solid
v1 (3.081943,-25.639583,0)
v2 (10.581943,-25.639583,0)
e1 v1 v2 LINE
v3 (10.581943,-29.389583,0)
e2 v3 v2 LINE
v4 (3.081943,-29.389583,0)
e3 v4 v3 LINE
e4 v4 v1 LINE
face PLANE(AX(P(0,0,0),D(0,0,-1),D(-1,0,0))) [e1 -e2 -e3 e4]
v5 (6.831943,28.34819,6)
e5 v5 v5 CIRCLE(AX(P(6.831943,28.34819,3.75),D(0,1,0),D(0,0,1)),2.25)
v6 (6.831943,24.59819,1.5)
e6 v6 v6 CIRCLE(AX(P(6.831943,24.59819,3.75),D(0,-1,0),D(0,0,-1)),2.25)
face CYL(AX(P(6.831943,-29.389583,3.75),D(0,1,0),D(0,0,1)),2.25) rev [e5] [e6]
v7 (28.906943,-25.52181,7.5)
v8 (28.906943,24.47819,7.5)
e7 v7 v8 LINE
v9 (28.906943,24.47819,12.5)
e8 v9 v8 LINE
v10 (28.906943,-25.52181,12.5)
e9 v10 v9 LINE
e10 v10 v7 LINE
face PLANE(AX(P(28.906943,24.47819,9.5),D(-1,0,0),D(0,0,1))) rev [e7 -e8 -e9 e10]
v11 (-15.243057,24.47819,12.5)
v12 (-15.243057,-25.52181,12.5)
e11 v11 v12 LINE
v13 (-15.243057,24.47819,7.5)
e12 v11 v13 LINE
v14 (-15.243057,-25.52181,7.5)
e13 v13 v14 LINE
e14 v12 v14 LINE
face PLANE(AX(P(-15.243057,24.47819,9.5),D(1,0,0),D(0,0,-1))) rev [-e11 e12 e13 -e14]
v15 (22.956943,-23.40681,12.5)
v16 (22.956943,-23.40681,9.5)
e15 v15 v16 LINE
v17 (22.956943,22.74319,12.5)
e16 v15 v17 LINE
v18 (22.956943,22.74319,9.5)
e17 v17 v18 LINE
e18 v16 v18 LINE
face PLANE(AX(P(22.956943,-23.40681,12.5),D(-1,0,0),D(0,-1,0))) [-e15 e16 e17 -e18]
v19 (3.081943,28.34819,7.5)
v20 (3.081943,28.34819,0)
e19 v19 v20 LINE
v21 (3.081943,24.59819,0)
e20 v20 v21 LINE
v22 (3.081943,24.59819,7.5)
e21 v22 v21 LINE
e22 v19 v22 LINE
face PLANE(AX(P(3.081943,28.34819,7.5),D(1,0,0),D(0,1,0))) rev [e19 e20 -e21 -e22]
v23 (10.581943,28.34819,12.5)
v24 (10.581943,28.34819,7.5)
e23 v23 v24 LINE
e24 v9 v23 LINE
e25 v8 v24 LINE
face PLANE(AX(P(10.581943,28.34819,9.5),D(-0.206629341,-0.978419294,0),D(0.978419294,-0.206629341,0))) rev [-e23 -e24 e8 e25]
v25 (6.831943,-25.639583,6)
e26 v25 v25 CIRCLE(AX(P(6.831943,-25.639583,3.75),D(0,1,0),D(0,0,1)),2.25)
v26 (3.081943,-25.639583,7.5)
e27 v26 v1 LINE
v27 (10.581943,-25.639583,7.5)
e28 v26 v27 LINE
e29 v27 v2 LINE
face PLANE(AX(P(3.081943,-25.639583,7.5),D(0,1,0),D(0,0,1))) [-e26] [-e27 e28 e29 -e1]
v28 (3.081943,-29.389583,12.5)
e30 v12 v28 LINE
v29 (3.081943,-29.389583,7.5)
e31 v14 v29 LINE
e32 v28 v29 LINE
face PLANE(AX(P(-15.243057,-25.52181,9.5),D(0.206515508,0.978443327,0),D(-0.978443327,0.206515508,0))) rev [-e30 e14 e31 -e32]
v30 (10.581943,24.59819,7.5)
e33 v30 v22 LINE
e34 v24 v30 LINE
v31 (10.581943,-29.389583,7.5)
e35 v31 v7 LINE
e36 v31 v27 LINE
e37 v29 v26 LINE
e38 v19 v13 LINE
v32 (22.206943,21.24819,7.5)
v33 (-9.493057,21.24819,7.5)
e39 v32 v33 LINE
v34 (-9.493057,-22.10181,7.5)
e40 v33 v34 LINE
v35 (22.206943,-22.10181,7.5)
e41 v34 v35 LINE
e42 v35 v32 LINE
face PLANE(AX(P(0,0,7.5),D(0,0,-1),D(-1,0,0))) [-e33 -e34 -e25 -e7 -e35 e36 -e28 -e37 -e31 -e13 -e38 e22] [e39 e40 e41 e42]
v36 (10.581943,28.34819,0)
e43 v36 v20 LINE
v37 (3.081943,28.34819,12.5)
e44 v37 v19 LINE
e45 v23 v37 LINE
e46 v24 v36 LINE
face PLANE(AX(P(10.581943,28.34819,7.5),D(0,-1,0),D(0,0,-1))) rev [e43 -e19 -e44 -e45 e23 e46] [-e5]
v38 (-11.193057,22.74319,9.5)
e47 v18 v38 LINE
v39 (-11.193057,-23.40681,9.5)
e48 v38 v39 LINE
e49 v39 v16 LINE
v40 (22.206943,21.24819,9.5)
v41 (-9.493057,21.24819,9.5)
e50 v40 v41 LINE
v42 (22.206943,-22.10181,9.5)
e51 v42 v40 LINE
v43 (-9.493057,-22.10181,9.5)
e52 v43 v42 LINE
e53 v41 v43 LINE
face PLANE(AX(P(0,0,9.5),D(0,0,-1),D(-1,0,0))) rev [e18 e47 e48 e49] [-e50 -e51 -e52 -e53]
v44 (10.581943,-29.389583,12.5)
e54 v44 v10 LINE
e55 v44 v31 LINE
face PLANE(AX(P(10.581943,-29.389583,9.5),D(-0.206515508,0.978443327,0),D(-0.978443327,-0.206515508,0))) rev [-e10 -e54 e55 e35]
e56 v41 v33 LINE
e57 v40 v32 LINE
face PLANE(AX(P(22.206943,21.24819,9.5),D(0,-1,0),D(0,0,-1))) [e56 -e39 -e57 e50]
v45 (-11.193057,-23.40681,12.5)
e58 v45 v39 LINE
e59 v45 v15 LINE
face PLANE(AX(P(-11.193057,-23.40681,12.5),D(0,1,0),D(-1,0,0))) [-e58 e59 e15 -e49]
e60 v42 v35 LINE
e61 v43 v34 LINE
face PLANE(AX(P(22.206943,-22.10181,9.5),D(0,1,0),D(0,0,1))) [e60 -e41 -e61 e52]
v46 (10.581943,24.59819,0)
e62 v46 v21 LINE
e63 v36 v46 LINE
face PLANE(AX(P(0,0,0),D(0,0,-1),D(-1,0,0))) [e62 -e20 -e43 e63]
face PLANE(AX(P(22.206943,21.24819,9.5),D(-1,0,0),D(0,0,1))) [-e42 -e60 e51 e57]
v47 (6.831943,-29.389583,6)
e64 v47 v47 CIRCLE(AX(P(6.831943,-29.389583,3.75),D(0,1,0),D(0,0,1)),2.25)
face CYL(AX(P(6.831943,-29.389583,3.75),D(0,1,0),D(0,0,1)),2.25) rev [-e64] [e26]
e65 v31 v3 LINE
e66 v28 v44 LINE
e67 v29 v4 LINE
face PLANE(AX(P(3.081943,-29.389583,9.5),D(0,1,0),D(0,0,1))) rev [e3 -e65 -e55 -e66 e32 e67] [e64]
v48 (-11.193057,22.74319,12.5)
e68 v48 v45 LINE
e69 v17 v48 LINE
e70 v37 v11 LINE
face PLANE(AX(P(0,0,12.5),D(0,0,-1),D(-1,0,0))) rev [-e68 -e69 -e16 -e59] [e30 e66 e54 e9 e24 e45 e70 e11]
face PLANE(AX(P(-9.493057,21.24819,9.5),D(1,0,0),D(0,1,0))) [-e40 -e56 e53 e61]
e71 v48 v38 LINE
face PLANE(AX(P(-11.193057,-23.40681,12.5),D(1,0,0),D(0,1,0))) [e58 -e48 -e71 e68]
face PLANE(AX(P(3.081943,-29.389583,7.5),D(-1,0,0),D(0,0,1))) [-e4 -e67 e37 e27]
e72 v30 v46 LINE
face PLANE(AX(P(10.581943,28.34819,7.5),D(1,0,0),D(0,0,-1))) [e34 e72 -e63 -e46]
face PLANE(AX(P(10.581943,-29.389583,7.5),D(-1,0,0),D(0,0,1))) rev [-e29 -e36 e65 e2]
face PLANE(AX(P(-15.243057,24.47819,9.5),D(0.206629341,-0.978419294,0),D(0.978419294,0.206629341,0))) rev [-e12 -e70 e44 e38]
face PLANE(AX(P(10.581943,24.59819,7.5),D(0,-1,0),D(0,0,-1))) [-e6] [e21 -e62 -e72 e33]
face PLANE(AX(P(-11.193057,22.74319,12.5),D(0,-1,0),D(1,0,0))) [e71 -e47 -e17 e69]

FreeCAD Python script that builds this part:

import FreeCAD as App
import Part
import Sketcher
Q = App.Units.Quantity

doc = App.newDocument("Part")
body = doc.addObject("PartDesign::Body", "Body")

sketch1 = body.newObject("Sketcher::SketchObject", "Sketch")
sketch1.AttachmentSupport = (doc.getObject("XY_Plane"), [""])
sketch1.MapMode = "FlatFace"
sketch1.addGeometry([
    Part.LineSegment(App.Vector(3.1, 28.3, 0), App.Vector(3.1, 24.6, 0)),
    Part.LineSegment(App.Vector(3.1, 24.6, 0), App.Vector(10.6, 24.6, 0)),
    Part.LineSegment(App.Vector(10.6, 24.6, 0), App.Vector(10.6, 28.3, 0)),
    Part.LineSegment(App.Vector(10.6, 28.3, 0), App.Vector(3.1, 28.3, 0)),
], False)
sketch1.addConstraint([
    Sketcher.Constraint("Coincident", 0, 2, 1, 1),
    Sketcher.Constraint("Coincident", 1, 2, 2, 1),
    Sketcher.Constraint("Coincident", 2, 2, 3, 1),
    Sketcher.Constraint("Coincident", 3, 2, 0, 1),
    Sketcher.Constraint("Vertical", 0),
    Sketcher.Constraint("Horizontal", 1),
    Sketcher.Constraint("Vertical", 2),
    Sketcher.Constraint("Horizontal", 3),
    Sketcher.Constraint("DistanceX", 1, 1, 1, 2, Q("7.5 mm")),
    Sketcher.Constraint("DistanceY", 0, 2, 0, 1, Q("3.75 mm")),
    Sketcher.Constraint("DistanceY", -1, 1, 0, 2, Q("24.59819 mm")),
    Sketcher.Constraint("DistanceX", -1, 1, 0, 2, Q("3.081943 mm")),
])
pad1 = body.newObject("PartDesign::Pad", "Pad")
pad1.Profile = sketch1
pad1.Length = 7.5
body2 = doc.addObject("PartDesign::Body", "Body001")

sketch2 = body2.newObject("Sketcher::SketchObject", "Sketch001")
sketch2.AttachmentSupport = (doc.getObject("XY_Plane001"), [""])
sketch2.MapMode = "FlatFace"
sketch2.addGeometry([
    Part.LineSegment(App.Vector(3.1, -25.6, 0), App.Vector(3.1, -29.4, 0)),
    Part.LineSegment(App.Vector(3.1, -29.4, 0), App.Vector(10.6, -29.4, 0)),
    Part.LineSegment(App.Vector(10.6, -29.4, 0), App.Vector(10.6, -25.6, 0)),
    Part.LineSegment(App.Vector(10.6, -25.6, 0), App.Vector(3.1, -25.6, 0)),
], False)
sketch2.addConstraint([
    Sketcher.Constraint("Coincident", 0, 2, 1, 1),
    Sketcher.Constraint("Coincident", 1, 2, 2, 1),
    Sketcher.Constraint("Coincident", 2, 2, 3, 1),
    Sketcher.Constraint("Coincident", 3, 2, 0, 1),
    Sketcher.Constraint("Vertical", 0),
    Sketcher.Constraint("Horizontal", 1),
    Sketcher.Constraint("Vertical", 2),
    Sketcher.Constraint("Horizontal", 3),
    Sketcher.Constraint("DistanceX", 1, 1, 1, 2, Q("7.5 mm")),
    Sketcher.Constraint("DistanceY", 0, 2, 0, 1, Q("3.75 mm")),
    Sketcher.Constraint("DistanceX", -1, 1, 0, 2, Q("3.081943 mm")),
    Sketcher.Constraint("DistanceY", 0, 2, -1, 1, Q("29.389583 mm")),
])
pad2 = body2.newObject("PartDesign::Pad", "Pad001")
pad2.Profile = sketch2
pad2.Length = 7.5
body3 = doc.addObject("PartDesign::Body", "Body002")

sketch3 = body3.newObject("Sketcher::SketchObject", "Sketch002")
sketch3.AttachmentSupport = (doc.getObject("XZ_Plane002"), [""])
sketch3.MapMode = "FlatFace"
sketch3.AttachmentOffset = App.Placement(App.Vector(0, 0, -28.34819), App.Rotation())
sketch3.addGeometry(Part.Circle(App.Vector(6.8, 3.8, 0), App.Vector(0, 0, 1), 2.2), False)
sketch3.addConstraint([
    Sketcher.Constraint("Diameter", 0, Q("4.5 mm")),
    Sketcher.Constraint("DistanceY", -1, 1, 0, 3, Q("3.75 mm")),
    Sketcher.Constraint("DistanceX", -1, 1, 0, 3, Q("6.831943 mm")),
])
pad3 = body3.newObject("PartDesign::Pad", "Pad002")
pad3.Profile = sketch3
pad3.Length = 58.737773
doc.recompute()

body4 = doc.addObject("PartDesign::Body", "Body003")
body4.BaseFeature = body3
boolean = body.newObject("PartDesign::Boolean", "Boolean")
boolean.Type = "Cut"
boolean.addObjects([body4])
doc.recompute()

boolean2 = body2.newObject("PartDesign::Boolean", "Boolean001")
boolean2.Type = "Cut"
boolean2.addObjects([body3])
body.AllowCompound = True
doc.recompute()

boolean3 = body.newObject("PartDesign::Boolean", "Boolean002")
boolean3.Type = "Fuse"
boolean3.addObjects([body2])

sketch4 = body.newObject("Sketcher::SketchObject", "Sketch003")
sketch4.AttachmentSupport = (doc.getObject("XY_Plane"), [""])
sketch4.MapMode = "FlatFace"
sketch4.AttachmentOffset = App.Placement(App.Vector(0, 0, 7.5), App.Rotation())
sketch4.addGeometry([
    Part.LineSegment(App.Vector(-15, 24, 0), App.Vector(-15, -26, 0)),
    Part.LineSegment(App.Vector(-15, -26, 0), App.Vector(3, -29, 0)),
    Part.LineSegment(App.Vector(3, -29, 0), App.Vector(11, -29, 0)),
    Part.LineSegment(App.Vector(11, -29, 0), App.Vector(29, -26, 0)),
    Part.LineSegment(App.Vector(29, -26, 0), App.Vector(29, 24, 0)),
    Part.LineSegment(App.Vector(29, 24, 0), App.Vector(11, 28, 0)),
    Part.LineSegment(App.Vector(11, 28, 0), App.Vector(3, 28, 0)),
    Part.LineSegment(App.Vector(3, 28, 0), App.Vector(-15, 24, 0)),
    Part.LineSegment(App.Vector(22, -22, 0), App.Vector(-9, -22, 0)),
    Part.LineSegment(App.Vector(-9, -22, 0), App.Vector(-9, 21, 0)),
    Part.LineSegment(App.Vector(-9, 21, 0), App.Vector(22, 21, 0)),
    Part.LineSegment(App.Vector(22, 21, 0), App.Vector(22, -22, 0)),
], False)
sketch4.addConstraint([
    Sketcher.Constraint("Coincident", 0, 2, 1, 1),
    Sketcher.Constraint("Coincident", 1, 2, 2, 1),
    Sketcher.Constraint("Coincident", 2, 2, 3, 1),
    Sketcher.Constraint("Coincident", 3, 2, 4, 1),
    Sketcher.Constraint("Coincident", 4, 2, 5, 1),
    Sketcher.Constraint("Coincident", 5, 2, 6, 1),
    Sketcher.Constraint("Coincident", 6, 2, 7, 1),
    Sketcher.Constraint("Coincident", 7, 2, 0, 1),
    Sketcher.Constraint("Coincident", 8, 2, 9, 1),
    Sketcher.Constraint("Coincident", 9, 2, 10, 1),
    Sketcher.Constraint("Coincident", 10, 2, 11, 1),
    Sketcher.Constraint("Coincident", 11, 2, 8, 1),
    Sketcher.Constraint("Vertical", 0),
    Sketcher.Constraint("Horizontal", 2),
    Sketcher.Constraint("Vertical", 4),
    Sketcher.Constraint("Horizontal", 6),
    Sketcher.Constraint("Horizontal", 8),
    Sketcher.Constraint("Vertical", 9),
    Sketcher.Constraint("Horizontal", 10),
    Sketcher.Constraint("Vertical", 11),
    Sketcher.Constraint("Horizontal", 0, 2, 3, 2),
    Sketcher.Constraint("Horizontal", 4, 2, 7, 2),
    Sketcher.Constraint("Vertical", 2, 2, 5, 2),
    Sketcher.Constraint("Vertical", 1, 2, 6, 2),
    Sketcher.Constraint("Equal", 1, 3),
    Sketcher.Constraint("DistanceY", 0, 2, 0, 1, Q("50 mm")),
    Sketcher.Constraint("DistanceX", 2, 1, 2, 2, Q("7.5 mm")),
    Sketcher.Constraint("DistanceX", 8, 2, 8, 1, Q("31.7 mm")),
    Sketcher.Constraint("DistanceY", 9, 1, 9, 2, Q("43.35 mm")),
    Sketcher.Constraint("DistanceX", 8, 2, 3, 2, Q("38.4 mm")),
    Sketcher.Constraint("DistanceY", 9, 2, 6, 2, Q("7.1 mm")),
    Sketcher.Constraint("DistanceX", 0, 2, 3, 2, Q("44.15 mm")),
    Sketcher.Constraint("DistanceY", 4, 2, 5, 2, Q("3.87 mm")),
    Sketcher.Constraint("Distance", 1, Q("18.728729 mm")),
    Sketcher.Constraint("DistanceY", 0, 2, -1, 1, Q("25.52181 mm")),
    Sketcher.Constraint("DistanceX", 0, 2, -1, 1, Q("15.243057 mm")),
])
pad4 = body.newObject("PartDesign::Pad", "Pad003")
pad4.Profile = sketch4
pad4.Length = 2

sketch5 = body.newObject("Sketcher::SketchObject", "Sketch004")
sketch5.AttachmentSupport = (doc.getObject("XY_Plane"), [""])
sketch5.MapMode = "FlatFace"
sketch5.AttachmentOffset = App.Placement(App.Vector(0, 0, 9.5), App.Rotation())
sketch5.addGeometry([
    Part.LineSegment(App.Vector(3, 28, 0), App.Vector(-15, 24, 0)),
    Part.LineSegment(App.Vector(-15, 24, 0), App.Vector(-15, -26, 0)),
    Part.LineSegment(App.Vector(-15, -26, 0), App.Vector(3, -29, 0)),
    Part.LineSegment(App.Vector(3, -29, 0), App.Vector(11, -29, 0)),
    Part.LineSegment(App.Vector(11, -29, 0), App.Vector(29, -26, 0)),
    Part.LineSegment(App.Vector(29, -26, 0), App.Vector(29, 24, 0)),
    Part.LineSegment(App.Vector(29, 24, 0), App.Vector(11, 28, 0)),
    Part.LineSegment(App.Vector(11, 28, 0), App.Vector(3, 28, 0)),
    Part.LineSegment(App.Vector(-11, -23, 0), App.Vector(-11, 23, 0)),
    Part.LineSegment(App.Vector(-11, 23, 0), App.Vector(23, 23, 0)),
    Part.LineSegment(App.Vector(23, 23, 0), App.Vector(23, -23, 0)),
    Part.LineSegment(App.Vector(23, -23, 0), App.Vector(-11, -23, 0)),
], False)
sketch5.addConstraint([
    Sketcher.Constraint("Coincident", 0, 2, 1, 1),
    Sketcher.Constraint("Coincident", 1, 2, 2, 1),
    Sketcher.Constraint("Coincident", 2, 2, 3, 1),
    Sketcher.Constraint("Coincident", 3, 2, 4, 1),
    Sketcher.Constraint("Coincident", 4, 2, 5, 1),
    Sketcher.Constraint("Coincident", 5, 2, 6, 1),
    Sketcher.Constraint("Coincident", 6, 2, 7, 1),
    Sketcher.Constraint("Coincident", 7, 2, 0, 1),
    Sketcher.Constraint("Coincident", 8, 2, 9, 1),
    Sketcher.Constraint("Coincident", 9, 2, 10, 1),
    Sketcher.Constraint("Coincident", 10, 2, 11, 1),
    Sketcher.Constraint("Coincident", 11, 2, 8, 1),
    Sketcher.Constraint("Vertical", 1),
    Sketcher.Constraint("Horizontal", 3),
    Sketcher.Constraint("Vertical", 5),
    Sketcher.Constraint("Horizontal", 7),
    Sketcher.Constraint("Vertical", 8),
    Sketcher.Constraint("Horizontal", 9),
    Sketcher.Constraint("Vertical", 10),
    Sketcher.Constraint("Horizontal", 11),
    Sketcher.Constraint("Horizontal", 1, 2, 4, 2),
    Sketcher.Constraint("Horizontal", 0, 2, 5, 2),
    Sketcher.Constraint("Vertical", 3, 2, 6, 2),
    Sketcher.Constraint("Vertical", 2, 2, 7, 2),
    Sketcher.Constraint("Equal", 2, 4),
    Sketcher.Constraint("DistanceY", 1, 2, 1, 1, Q("50 mm")),
    Sketcher.Constraint("DistanceX", 3, 1, 3, 2, Q("7.5 mm")),
    Sketcher.Constraint("DistanceX", 9, 1, 9, 2, Q("34.15 mm")),
    Sketcher.Constraint("DistanceY", 8, 1, 8, 2, Q("46.15 mm")),
    Sketcher.Constraint("DistanceX", 8, 2, 5, 2, Q("40.1 mm")),
    Sketcher.Constraint("DistanceX", 0, 2, 9, 2, Q("38.2 mm")),
    Sketcher.Constraint("DistanceY", 5, 2, 6, 2, Q("3.87 mm")),
    Sketcher.Constraint("DistanceY", 8, 2, 0, 2, Q("1.735 mm")),
    Sketcher.Constraint("Distance", 2, Q("18.728729 mm")),
    Sketcher.Constraint("DistanceY", -1, 1, 0, 2, Q("24.47819 mm")),
    Sketcher.Constraint("DistanceX", 0, 2, -1, 1, Q("15.243057 mm")),
])
pad5 = body.newObject("PartDesign::Pad", "Pad004")
pad5.Profile = sketch5
pad5.Length = 3

doc.recompute()
